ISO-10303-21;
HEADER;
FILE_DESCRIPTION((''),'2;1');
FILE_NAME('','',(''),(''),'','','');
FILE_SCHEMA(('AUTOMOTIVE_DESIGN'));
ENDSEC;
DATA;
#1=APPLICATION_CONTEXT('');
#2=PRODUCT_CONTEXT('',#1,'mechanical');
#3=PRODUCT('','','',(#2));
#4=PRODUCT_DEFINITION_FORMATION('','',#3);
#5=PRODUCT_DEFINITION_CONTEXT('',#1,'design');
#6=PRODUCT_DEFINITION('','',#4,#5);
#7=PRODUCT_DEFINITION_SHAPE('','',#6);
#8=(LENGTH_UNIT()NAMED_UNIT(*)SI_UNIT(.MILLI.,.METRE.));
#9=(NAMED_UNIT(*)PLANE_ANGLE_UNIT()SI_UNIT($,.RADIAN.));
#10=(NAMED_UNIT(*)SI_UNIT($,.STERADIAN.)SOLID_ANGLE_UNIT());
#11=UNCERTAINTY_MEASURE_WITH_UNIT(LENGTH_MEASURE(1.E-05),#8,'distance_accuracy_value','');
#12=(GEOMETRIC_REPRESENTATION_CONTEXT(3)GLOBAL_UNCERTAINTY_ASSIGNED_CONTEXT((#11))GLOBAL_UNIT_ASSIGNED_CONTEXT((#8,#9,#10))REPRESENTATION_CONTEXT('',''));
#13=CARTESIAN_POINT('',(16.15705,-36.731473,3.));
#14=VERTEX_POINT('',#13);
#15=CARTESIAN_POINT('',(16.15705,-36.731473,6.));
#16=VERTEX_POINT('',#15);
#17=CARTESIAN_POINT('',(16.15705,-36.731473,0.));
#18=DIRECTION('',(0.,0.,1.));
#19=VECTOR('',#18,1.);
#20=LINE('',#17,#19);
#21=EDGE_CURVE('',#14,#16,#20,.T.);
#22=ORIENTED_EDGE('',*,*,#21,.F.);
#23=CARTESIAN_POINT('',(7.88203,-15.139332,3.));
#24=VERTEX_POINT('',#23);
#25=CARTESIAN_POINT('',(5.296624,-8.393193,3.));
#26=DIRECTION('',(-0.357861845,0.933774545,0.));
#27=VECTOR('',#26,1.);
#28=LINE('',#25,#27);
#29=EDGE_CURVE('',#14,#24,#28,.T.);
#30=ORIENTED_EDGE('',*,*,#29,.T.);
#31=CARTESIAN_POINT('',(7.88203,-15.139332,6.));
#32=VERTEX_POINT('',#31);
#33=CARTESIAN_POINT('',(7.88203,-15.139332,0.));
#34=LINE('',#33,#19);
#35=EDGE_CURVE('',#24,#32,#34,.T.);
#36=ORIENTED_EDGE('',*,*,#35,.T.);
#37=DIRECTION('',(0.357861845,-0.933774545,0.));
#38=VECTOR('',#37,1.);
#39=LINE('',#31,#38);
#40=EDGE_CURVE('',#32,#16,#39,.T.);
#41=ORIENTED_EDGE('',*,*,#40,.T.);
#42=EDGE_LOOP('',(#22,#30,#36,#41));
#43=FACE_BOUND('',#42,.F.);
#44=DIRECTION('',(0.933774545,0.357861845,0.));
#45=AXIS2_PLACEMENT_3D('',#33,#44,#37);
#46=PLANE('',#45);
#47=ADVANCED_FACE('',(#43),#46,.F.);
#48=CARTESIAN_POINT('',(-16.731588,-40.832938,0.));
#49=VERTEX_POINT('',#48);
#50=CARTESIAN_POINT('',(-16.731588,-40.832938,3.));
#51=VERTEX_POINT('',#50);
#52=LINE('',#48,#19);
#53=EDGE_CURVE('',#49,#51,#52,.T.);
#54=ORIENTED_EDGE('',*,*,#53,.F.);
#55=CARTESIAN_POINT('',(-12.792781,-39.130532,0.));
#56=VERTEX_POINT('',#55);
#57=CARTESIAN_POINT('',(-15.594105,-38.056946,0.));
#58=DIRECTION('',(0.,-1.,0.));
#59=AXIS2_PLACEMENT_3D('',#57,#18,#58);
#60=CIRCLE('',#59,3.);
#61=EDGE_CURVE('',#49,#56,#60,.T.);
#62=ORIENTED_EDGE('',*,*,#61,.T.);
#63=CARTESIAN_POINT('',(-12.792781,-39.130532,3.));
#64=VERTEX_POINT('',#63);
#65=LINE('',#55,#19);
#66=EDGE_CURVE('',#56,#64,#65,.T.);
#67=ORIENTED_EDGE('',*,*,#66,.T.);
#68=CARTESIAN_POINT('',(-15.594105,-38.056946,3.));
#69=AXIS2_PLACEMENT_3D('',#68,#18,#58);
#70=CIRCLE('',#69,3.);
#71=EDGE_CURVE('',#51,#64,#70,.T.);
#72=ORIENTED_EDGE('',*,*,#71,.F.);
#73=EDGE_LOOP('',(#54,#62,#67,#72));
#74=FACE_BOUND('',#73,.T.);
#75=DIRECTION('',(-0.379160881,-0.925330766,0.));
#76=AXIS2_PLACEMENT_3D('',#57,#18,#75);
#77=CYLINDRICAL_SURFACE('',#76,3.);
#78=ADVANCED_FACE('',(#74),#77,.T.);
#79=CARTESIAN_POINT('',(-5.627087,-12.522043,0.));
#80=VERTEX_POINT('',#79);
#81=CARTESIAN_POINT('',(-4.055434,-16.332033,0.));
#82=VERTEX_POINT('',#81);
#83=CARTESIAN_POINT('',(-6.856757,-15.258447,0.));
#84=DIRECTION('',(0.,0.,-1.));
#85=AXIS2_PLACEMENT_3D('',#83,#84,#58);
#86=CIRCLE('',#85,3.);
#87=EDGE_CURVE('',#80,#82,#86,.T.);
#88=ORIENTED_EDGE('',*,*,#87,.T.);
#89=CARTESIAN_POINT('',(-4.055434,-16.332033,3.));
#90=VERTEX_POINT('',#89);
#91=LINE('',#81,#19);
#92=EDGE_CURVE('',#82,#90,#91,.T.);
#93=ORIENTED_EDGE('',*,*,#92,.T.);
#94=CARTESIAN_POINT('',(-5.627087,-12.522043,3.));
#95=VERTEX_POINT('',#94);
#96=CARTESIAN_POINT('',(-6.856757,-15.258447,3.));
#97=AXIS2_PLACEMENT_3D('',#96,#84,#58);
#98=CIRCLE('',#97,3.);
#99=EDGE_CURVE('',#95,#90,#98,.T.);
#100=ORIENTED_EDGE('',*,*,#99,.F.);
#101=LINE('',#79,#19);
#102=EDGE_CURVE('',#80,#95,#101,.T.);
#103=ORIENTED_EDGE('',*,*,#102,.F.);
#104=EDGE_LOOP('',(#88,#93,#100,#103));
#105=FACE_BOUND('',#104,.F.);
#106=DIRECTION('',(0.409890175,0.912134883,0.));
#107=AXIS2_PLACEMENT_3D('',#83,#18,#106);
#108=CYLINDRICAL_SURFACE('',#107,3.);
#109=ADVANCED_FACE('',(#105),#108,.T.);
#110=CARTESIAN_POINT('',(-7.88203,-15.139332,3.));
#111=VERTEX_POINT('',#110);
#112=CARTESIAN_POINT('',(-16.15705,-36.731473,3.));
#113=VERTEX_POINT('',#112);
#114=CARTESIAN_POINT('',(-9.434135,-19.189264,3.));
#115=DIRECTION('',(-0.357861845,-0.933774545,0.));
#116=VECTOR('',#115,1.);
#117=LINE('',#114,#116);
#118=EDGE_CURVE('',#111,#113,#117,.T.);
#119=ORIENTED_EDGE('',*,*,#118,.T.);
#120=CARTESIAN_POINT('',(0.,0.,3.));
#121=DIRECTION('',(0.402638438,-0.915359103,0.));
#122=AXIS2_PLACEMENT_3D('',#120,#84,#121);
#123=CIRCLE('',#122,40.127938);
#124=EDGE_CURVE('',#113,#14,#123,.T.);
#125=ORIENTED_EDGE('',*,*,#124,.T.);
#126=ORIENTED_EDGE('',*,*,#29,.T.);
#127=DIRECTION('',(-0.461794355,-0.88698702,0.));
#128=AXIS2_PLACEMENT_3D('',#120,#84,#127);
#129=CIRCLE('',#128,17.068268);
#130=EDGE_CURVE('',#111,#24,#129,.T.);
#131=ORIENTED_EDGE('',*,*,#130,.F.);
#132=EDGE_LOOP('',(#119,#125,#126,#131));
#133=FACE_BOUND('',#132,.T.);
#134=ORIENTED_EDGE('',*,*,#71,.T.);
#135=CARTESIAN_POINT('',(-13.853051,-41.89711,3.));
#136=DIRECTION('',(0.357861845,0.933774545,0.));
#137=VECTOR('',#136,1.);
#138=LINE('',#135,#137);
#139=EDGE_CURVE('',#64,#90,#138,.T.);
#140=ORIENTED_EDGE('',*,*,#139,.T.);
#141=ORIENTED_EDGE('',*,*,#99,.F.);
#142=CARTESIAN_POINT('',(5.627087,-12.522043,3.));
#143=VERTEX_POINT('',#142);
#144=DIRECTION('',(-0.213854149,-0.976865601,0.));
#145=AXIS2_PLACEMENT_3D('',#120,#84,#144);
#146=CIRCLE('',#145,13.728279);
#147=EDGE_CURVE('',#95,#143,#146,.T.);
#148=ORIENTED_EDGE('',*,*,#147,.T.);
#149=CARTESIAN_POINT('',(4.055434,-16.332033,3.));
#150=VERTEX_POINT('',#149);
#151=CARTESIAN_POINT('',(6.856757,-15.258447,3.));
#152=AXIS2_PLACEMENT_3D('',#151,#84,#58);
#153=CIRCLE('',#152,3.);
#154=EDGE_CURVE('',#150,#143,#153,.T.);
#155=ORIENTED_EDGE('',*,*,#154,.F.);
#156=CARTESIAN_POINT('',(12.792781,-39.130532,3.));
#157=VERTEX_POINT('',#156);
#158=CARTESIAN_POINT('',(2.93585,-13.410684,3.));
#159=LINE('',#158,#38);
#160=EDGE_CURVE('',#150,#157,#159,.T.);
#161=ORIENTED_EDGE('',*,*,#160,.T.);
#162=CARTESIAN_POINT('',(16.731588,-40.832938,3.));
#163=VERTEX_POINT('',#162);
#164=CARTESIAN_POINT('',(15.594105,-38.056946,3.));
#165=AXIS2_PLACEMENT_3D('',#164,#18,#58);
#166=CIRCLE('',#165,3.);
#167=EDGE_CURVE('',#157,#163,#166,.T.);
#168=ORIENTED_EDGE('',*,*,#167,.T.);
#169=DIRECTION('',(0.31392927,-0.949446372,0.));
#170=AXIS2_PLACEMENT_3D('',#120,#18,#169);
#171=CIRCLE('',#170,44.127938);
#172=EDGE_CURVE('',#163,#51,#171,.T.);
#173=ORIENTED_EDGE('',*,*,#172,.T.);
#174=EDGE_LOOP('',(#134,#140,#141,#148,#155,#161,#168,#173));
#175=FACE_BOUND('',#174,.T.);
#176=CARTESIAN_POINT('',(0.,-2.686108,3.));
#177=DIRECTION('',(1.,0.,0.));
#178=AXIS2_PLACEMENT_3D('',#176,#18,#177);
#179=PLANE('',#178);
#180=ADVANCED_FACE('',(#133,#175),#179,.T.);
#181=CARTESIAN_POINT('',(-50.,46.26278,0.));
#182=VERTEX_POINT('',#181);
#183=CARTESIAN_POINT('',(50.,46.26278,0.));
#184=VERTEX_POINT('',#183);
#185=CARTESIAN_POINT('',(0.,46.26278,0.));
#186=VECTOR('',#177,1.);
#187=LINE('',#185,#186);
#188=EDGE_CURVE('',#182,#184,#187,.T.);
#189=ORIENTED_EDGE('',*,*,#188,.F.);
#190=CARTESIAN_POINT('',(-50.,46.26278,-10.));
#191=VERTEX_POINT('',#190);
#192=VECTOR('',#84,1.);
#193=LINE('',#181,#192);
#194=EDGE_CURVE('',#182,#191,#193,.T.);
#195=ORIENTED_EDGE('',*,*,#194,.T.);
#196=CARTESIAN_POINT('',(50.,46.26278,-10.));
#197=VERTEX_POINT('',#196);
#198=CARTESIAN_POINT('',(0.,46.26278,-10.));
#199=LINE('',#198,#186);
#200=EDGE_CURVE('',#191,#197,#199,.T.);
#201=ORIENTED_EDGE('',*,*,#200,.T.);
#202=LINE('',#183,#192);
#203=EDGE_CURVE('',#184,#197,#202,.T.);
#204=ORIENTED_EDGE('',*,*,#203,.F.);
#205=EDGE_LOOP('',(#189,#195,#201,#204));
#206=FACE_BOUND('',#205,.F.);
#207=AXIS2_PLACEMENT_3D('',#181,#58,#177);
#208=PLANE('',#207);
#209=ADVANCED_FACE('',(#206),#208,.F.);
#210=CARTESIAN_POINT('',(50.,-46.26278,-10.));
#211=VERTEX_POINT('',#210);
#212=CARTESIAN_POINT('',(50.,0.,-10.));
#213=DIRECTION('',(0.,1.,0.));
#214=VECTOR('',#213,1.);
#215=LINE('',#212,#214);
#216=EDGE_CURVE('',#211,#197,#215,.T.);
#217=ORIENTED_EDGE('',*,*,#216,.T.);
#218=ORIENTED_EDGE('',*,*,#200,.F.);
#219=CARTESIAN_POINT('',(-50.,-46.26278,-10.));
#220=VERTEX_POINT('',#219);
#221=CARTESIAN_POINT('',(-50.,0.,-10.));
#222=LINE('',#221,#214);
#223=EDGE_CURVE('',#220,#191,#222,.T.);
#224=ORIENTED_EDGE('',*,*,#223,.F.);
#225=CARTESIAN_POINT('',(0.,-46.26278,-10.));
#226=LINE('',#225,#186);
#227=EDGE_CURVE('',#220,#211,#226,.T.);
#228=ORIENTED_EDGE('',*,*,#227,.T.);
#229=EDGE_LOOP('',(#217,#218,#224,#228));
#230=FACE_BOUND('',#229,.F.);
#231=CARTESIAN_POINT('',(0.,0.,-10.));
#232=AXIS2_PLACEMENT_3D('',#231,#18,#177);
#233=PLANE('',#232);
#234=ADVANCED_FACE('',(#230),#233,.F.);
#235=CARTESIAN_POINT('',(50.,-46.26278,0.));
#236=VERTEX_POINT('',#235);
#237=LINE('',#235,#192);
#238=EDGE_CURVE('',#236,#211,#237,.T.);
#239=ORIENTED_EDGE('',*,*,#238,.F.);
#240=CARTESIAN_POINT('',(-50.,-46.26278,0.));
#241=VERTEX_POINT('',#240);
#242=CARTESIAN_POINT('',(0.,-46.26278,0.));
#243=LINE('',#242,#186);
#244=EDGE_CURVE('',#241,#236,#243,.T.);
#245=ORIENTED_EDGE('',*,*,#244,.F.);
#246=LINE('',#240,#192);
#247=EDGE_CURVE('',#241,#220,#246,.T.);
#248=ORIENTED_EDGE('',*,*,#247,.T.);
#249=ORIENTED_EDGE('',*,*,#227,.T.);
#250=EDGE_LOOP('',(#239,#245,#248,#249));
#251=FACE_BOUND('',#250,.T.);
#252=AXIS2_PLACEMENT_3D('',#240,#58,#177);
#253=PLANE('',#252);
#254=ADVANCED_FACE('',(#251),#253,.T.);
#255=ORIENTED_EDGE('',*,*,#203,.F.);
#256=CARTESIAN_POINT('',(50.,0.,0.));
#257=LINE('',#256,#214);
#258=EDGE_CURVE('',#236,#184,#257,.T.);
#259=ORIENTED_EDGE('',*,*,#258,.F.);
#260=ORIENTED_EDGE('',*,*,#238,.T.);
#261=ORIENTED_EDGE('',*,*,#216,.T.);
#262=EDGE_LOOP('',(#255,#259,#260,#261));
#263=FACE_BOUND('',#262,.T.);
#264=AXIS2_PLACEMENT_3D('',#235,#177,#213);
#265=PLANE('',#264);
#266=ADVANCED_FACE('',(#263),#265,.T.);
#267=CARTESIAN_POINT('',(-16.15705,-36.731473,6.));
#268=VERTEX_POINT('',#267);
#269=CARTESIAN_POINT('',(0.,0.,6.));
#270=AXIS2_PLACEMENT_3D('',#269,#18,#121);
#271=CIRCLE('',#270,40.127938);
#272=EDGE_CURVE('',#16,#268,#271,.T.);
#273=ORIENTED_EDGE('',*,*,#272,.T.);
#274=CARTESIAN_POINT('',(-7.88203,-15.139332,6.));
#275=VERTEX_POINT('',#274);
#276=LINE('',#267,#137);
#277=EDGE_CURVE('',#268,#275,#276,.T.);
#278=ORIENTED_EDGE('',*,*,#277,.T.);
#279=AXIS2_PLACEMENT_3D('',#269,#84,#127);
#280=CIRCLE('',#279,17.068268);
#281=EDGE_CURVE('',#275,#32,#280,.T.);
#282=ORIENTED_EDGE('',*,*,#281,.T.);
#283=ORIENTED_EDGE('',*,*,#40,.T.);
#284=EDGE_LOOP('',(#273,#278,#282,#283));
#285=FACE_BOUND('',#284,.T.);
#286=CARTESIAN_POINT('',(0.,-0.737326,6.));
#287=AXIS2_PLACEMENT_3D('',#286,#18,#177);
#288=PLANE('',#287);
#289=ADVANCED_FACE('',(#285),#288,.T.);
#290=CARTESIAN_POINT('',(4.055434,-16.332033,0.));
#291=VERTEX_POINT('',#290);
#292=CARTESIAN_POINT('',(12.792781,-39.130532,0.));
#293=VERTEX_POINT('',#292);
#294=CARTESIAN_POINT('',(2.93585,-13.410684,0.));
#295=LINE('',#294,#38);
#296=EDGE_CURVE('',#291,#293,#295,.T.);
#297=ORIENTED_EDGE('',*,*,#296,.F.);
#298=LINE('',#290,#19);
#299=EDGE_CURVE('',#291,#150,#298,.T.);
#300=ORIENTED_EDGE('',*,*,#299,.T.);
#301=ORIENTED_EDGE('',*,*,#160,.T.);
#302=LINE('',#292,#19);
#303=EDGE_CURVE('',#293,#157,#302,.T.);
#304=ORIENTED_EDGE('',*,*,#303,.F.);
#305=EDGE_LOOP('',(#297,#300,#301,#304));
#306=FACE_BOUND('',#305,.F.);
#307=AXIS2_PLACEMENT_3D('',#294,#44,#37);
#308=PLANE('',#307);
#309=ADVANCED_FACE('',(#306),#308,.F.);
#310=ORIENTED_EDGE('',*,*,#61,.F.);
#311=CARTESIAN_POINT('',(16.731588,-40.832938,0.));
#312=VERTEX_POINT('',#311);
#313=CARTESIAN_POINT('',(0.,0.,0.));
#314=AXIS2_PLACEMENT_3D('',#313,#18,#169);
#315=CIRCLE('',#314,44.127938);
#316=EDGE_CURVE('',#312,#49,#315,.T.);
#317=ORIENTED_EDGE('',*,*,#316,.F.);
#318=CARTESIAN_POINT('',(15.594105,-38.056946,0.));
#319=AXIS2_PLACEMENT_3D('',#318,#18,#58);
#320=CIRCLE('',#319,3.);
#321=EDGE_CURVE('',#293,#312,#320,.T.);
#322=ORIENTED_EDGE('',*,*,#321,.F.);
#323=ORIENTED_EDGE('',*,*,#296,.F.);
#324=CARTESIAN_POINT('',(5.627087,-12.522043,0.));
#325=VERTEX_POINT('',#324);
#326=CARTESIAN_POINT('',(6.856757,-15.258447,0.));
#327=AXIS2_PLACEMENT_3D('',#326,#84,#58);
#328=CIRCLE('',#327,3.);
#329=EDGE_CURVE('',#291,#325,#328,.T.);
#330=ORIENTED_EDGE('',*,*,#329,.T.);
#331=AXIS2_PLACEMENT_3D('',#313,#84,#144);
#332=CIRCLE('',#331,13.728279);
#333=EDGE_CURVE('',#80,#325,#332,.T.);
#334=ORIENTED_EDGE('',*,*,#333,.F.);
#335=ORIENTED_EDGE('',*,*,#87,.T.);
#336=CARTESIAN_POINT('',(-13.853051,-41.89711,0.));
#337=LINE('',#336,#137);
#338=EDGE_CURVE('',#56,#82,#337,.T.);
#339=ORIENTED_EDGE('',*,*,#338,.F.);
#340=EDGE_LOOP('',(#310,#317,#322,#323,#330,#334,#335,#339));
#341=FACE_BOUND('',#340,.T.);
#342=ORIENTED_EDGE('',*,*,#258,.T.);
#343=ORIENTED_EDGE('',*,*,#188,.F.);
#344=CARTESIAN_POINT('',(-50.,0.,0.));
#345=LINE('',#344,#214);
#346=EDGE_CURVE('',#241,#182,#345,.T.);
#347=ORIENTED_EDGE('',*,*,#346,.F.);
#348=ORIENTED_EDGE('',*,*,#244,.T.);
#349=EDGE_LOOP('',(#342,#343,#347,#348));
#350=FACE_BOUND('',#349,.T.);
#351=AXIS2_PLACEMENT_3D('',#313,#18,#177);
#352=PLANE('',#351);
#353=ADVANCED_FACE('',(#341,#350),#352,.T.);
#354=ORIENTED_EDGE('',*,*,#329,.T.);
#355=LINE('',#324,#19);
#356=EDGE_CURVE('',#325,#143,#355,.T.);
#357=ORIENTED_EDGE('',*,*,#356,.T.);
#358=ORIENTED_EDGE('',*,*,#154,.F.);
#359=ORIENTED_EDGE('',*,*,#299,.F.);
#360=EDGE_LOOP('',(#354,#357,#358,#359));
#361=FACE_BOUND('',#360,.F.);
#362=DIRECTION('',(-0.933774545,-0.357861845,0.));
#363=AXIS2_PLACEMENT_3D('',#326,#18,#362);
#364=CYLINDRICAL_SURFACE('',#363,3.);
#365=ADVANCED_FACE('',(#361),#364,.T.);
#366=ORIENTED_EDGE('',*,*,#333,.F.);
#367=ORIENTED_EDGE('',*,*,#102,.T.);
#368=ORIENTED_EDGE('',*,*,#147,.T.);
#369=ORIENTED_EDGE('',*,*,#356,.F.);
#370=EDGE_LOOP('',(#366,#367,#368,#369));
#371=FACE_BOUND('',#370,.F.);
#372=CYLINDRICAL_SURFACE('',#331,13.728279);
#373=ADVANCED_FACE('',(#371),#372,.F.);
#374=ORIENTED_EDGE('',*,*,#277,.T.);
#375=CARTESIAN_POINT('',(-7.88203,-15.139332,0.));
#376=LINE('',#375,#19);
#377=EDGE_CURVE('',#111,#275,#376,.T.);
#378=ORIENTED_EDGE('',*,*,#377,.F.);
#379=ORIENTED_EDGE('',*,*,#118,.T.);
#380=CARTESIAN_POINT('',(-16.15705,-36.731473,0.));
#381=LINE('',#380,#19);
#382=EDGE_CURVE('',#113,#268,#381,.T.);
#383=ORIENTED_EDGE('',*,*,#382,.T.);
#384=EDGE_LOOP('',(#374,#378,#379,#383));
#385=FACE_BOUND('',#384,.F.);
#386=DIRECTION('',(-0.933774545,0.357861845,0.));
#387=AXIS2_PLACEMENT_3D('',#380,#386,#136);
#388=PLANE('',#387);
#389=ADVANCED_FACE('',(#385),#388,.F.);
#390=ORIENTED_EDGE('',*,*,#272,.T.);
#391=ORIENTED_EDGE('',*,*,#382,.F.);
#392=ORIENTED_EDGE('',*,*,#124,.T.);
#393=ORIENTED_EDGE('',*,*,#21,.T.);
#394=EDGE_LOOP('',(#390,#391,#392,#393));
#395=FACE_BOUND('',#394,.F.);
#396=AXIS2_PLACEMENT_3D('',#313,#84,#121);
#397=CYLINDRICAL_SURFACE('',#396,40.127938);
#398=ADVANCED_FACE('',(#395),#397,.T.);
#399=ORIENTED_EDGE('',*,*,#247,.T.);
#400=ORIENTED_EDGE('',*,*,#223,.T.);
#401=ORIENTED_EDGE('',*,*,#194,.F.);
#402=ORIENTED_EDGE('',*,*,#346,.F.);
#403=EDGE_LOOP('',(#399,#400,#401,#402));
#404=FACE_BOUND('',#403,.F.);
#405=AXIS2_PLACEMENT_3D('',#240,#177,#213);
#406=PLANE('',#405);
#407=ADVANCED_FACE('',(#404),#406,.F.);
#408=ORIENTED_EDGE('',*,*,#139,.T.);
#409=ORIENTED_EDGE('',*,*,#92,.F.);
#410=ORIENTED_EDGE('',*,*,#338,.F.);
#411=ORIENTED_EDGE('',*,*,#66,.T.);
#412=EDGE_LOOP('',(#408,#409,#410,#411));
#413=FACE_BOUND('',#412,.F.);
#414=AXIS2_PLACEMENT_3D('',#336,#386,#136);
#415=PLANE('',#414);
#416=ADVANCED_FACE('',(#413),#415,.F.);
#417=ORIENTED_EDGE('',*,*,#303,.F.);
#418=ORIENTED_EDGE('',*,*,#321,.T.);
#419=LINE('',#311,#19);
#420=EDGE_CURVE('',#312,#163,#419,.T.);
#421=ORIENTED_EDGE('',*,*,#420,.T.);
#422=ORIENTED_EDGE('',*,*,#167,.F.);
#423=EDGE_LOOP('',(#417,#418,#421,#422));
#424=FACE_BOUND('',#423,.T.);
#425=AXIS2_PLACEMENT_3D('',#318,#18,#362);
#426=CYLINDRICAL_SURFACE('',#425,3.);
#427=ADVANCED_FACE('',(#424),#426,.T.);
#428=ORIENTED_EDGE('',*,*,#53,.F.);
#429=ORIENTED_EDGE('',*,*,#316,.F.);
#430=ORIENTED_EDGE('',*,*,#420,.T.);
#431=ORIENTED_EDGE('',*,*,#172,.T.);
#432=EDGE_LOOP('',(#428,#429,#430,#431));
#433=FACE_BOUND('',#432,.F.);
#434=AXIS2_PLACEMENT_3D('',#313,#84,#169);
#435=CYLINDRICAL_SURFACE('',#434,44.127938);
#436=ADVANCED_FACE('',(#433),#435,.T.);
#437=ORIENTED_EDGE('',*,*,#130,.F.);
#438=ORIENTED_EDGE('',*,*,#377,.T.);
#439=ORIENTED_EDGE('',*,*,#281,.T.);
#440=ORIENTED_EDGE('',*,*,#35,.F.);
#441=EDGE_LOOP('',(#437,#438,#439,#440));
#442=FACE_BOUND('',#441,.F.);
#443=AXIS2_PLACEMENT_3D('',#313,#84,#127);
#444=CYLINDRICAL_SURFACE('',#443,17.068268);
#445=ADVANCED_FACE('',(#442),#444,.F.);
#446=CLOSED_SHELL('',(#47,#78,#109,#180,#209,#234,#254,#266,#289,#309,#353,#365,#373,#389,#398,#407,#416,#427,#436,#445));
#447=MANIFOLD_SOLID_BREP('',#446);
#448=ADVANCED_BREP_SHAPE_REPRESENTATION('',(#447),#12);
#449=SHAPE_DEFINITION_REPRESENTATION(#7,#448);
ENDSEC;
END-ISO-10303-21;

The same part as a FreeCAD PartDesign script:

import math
import FreeCAD as App
import Part
import Sketcher
Q = App.Units.Quantity


def edges_at(feature, points):
    """Names of the edges that pass closest to the given points."""
    edges = feature.Shape.Edges
    near = lambda p: min(range(len(edges)), key=lambda i: edges[i].distToShape(Part.Vertex(*p))[0])
    return sorted({f"Edge{near(p) + 1}" for p in points})


def add_polygon(sketch, points):
    """Adds a closed chain of lines whose ends are joined by coincident constraints."""
    first, n = sketch.GeometryCount, len(points)
    for a, b in zip(points, points[1:] + points[:1]):
        sketch.addGeometry(Part.LineSegment(App.Vector(*a, 0), App.Vector(*b, 0)), False)
    for i in range(n):
        sketch.addConstraint(Sketcher.Constraint("Coincident", first + i, 2, first + (i + 1) % n, 1))

doc = App.newDocument("Part")
body = doc.addObject("PartDesign::Body", "Body")

sketch1 = body.newObject("Sketcher::SketchObject", "Sketch")
sketch1.AttachmentSupport = (doc.getObject("XY_Plane"), [""])
sketch1.MapMode = "FlatFace"
add_polygon(sketch1, [(-50, 46), (-50, -46), (50, -46), (50, 46)])
sketch1.addConstraint([
    Sketcher.Constraint("Vertical", 0),
    Sketcher.Constraint("Horizontal", 1),
    Sketcher.Constraint("Vertical", 2),
    Sketcher.Constraint("Horizontal", 3),
    Sketcher.Constraint("Symmetric", 0, 2, 2, 2, -1, 1),
    Sketcher.Constraint("DistanceX", 1, 1, 1, 2, Q("100 mm")),
    Sketcher.Constraint("DistanceY", 0, 2, 0, 1, Q("92.52556 mm")),
])
pad1 = body.newObject("PartDesign::Pad", "Pad")
pad1.Profile = sketch1
pad1.Length = 10
pad1.Reversed = True

sketch2 = body.newObject("Sketcher::SketchObject", "Sketch001")
sketch2.AttachmentSupport = (doc.getObject("XY_Plane"), [""])
sketch2.MapMode = "FlatFace"
sketch2.addGeometry([
    Part.LineSegment(App.Vector(3, -13, 0), App.Vector(14, -42, 0)),
    Part.ArcOfCircle(Part.Circle(App.Vector(0, 0, 0), App.Vector(0, 0, 1), 44), math.radians(-72), math.radians(252)),
    Part.LineSegment(App.Vector(-14, -42, 0), App.Vector(-3, -13, 0)),
    Part.ArcOfCircle(Part.Circle(App.Vector(0, 0, 0), App.Vector(0, 0, 1), 14), math.radians(-78), math.radians(258)),
], False)
sketch2.addConstraint([
    Sketcher.Constraint("Coincident", 0, 2, 1, 1),
    Sketcher.Constraint("Coincident", 1, 2, 2, 1),
    Sketcher.Constraint("Coincident", 2, 2, 3, 2),
    Sketcher.Constraint("Coincident", 3, 1, 0, 1),
    Sketcher.Constraint("Coincident", 1, 3, -1, 1),
    Sketcher.Constraint("Coincident", 3, 3, -1, 1),
    Sketcher.Constraint("Horizontal", 0, 2, 1, 2),
    Sketcher.Constraint("Horizontal", 2, 2, 3, 1),
    Sketcher.Constraint("Radius", 3, Q("13.728279 mm")),
    Sketcher.Constraint("Radius", 1, Q("44.127938 mm")),
    Sketcher.Constraint("DistanceX", 1, 2, 2, 2, Q("10.917202 mm")),
    Sketcher.Constraint("DistanceX", 2, 2, 0, 2, Q("16.788901 mm")),
])
pad2 = body.newObject("PartDesign::Pad", "Pad001")
pad2.Profile = sketch2
pad2.Length = 3

sketch3 = body.newObject("Sketcher::SketchObject", "Sketch002")
sketch3.AttachmentSupport = (doc.getObject("XY_Plane"), [""])
sketch3.MapMode = "FlatFace"
sketch3.addGeometry([
    Part.LineSegment(App.Vector(8, -15, 0), App.Vector(16, -37, 0)),
    Part.ArcOfCircle(Part.Circle(App.Vector(0, 0, 0), App.Vector(0, 0, 1), 40), math.radians(-66), math.radians(246)),
    Part.LineSegment(App.Vector(-16, -37, 0), App.Vector(-8, -15, 0)),
    Part.ArcOfCircle(Part.Circle(App.Vector(0, 0, 0), App.Vector(0, 0, 1), 17), math.radians(-62), math.radians(242)),
], False)
sketch3.addConstraint([
    Sketcher.Constraint("Coincident", 0, 2, 1, 1),
    Sketcher.Constraint("Coincident", 1, 2, 2, 1),
    Sketcher.Constraint("Coincident", 2, 2, 3, 2),
    Sketcher.Constraint("Coincident", 3, 1, 0, 1),
    Sketcher.Constraint("Coincident", 1, 3, -1, 1),
    Sketcher.Constraint("Coincident", 3, 3, -1, 1),
    Sketcher.Constraint("Horizontal", 0, 2, 1, 2),
    Sketcher.Constraint("Horizontal", 2, 2, 3, 1),
    Sketcher.Constraint("Radius", 1, Q("40.127938 mm")),
    Sketcher.Constraint("Radius", 3, Q("17.068268 mm")),
    Sketcher.Constraint("DistanceX", 1, 2, 0, 2, Q("32.3141 mm")),
    Sketcher.Constraint("DistanceX", 2, 2, -1, 1, Q("7.88203 mm")),
])
pad3 = body.newObject("PartDesign::Pad", "Pad002")
pad3.Profile = sketch3
pad3.Length = 6
doc.recompute()

fillet = body.newObject("PartDesign::Fillet", "Fillet")
fillet.Base = (pad3, edges_at(pad3, [
    (-2.936, -13.411, 1.5),
    (2.936, -13.411, 1.5),
    (13.853, -41.897, 1.5),
    (-13.853, -41.897, 1.5),
]))
fillet.Radius = 3

doc.recompute()
